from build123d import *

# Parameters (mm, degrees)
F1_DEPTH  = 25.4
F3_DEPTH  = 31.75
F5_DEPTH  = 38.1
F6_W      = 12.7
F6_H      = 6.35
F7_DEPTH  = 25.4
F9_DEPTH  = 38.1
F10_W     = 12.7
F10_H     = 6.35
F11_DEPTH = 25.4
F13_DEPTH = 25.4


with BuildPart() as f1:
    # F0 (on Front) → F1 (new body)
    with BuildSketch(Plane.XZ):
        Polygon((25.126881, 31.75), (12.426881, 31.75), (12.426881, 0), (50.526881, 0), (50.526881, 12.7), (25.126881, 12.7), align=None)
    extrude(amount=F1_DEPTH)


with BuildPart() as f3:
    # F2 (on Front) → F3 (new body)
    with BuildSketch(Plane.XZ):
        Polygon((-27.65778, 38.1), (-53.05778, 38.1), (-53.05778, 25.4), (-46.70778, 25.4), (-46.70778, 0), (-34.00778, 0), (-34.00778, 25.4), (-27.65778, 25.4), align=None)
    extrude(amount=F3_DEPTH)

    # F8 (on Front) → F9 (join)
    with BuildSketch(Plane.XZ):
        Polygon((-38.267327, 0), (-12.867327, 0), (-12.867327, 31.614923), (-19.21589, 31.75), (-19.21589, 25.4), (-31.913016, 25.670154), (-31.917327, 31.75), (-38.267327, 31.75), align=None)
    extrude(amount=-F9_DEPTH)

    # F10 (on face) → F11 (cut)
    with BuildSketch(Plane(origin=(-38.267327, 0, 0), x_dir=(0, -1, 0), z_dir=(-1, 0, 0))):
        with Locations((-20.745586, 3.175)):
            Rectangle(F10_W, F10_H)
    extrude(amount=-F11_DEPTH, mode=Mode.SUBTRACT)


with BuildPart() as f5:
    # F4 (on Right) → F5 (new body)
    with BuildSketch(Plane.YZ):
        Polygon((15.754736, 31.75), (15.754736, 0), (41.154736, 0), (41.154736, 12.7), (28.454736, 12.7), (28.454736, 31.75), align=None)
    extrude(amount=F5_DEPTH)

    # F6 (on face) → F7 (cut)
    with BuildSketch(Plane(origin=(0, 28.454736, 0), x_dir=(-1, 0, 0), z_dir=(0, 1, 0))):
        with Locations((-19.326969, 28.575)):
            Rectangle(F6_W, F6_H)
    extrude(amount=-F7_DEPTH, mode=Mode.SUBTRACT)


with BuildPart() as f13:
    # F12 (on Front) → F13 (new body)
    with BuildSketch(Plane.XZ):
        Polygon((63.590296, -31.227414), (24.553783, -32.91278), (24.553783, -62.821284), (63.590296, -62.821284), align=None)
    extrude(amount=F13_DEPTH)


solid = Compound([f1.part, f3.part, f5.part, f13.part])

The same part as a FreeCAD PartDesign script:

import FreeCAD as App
import Part
import Sketcher

V = App.Vector
Q = App.Units.Quantity


def add_polygon(sketch, points):
    """Adds a closed chain of lines whose ends are joined by coincident constraints."""
    first, n = sketch.GeometryCount, len(points)
    for a, b in zip(points, points[1:] + points[:1]):
        sketch.addGeometry(Part.LineSegment(App.Vector(*a, 0), App.Vector(*b, 0)), False)
    for i in range(n):
        sketch.addConstraint(Sketcher.Constraint("Coincident", first + i, 2, first + (i + 1) % n, 1))

doc = App.newDocument("Part")
body = doc.addObject("PartDesign::Body", "Body")

# Sketch on XZ plane
sketch1 = doc.addObject("Sketcher::SketchObject", "Sketch")
body.addObject(sketch1)
sketch1.AttachmentSupport = (doc.XZ_Plane, [""])
sketch1.MapMode = "FlatFace"
add_polygon(sketch1, [(25.126881, 31.75), (12.426881, 31.75), (12.426881, 0), (50.526881, 0), (50.526881, 12.7), (25.126881, 12.7)])  # lines 0-5
sketch1.addConstraint([
    Sketcher.Constraint("Horizontal", 0),
    Sketcher.Constraint("Vertical", 1),
    Sketcher.Constraint("Horizontal", 2),
    Sketcher.Constraint("Vertical", 3),
    Sketcher.Constraint("Horizontal", 4),
    Sketcher.Constraint("Vertical", 5),
    Sketcher.Constraint("PointOnObject", 1, 2, -1),
    Sketcher.Constraint("Equal", 0, 3),
    Sketcher.Constraint("DistanceX", 4, 2, 4, 1, Q("1 in")),
    Sketcher.Constraint("DistanceX", 0, 2, 0, 1, Q("0.5 in")),
    Sketcher.Constraint("DistanceY", 1, 2, 1, 1, Q("1.25 in")),
    Sketcher.Constraint("DistanceX", -1, 1, 0, 2, Q("12.426881 mm")),
])
pad1 = doc.addObject("PartDesign::Pad", "Pad")
body.addObject(pad1)
pad1.Profile = sketch1
pad1.Length = Q("1 in")
body2 = doc.addObject("PartDesign::Body", "Body001")

# Sketch on XZ plane
sketch2 = doc.addObject("Sketcher::SketchObject", "Sketch001")
body2.addObject(sketch2)
sketch2.AttachmentSupport = (doc.getObject("XZ_Plane001"), [""])
sketch2.MapMode = "FlatFace"
add_polygon(sketch2, [(-27.65778, 38.1), (-53.05778, 38.1), (-53.05778, 25.4), (-46.70778, 25.4), (-46.70778, 0), (-34.00778, 0), (-34.00778, 25.4), (-27.65778, 25.4)])  # lines 0-7
sketch2.addConstraint([
    Sketcher.Constraint("Horizontal", 0),
    Sketcher.Constraint("Vertical", 1),
    Sketcher.Constraint("Horizontal", 2),
    Sketcher.Constraint("Vertical", 3),
    Sketcher.Constraint("Horizontal", 4),
    Sketcher.Constraint("Vertical", 5),
    Sketcher.Constraint("Horizontal", 6),
    Sketcher.Constraint("Vertical", 7),
    Sketcher.Constraint("PointOnObject", 3, 2, -1),
    Sketcher.Constraint("Horizontal", 2, 2, 5, 2),
    Sketcher.Constraint("Equal", 2, 6),
    Sketcher.Constraint("Equal", 4, 1),
    Sketcher.Constraint("Equal", 0, 3),
    Sketcher.Constraint("DistanceX", 0, 2, 0, 1, Q("1 in")),
    Sketcher.Constraint("DistanceX", 4, 1, 4, 2, Q("0.5 in")),
    Sketcher.Constraint("DistanceX", 0, 2, -1, 1, Q("53.05778 mm")),
])
pad2 = doc.addObject("PartDesign::Pad", "Pad001")
body2.addObject(pad2)
pad2.Profile = sketch2
pad2.Length = Q("1.25 in")

# Sketch on XZ plane
sketch3 = doc.addObject("Sketcher::SketchObject", "Sketch002")
body2.addObject(sketch3)
sketch3.AttachmentSupport = (doc.getObject("XZ_Plane001"), [""])
sketch3.MapMode = "FlatFace"
add_polygon(sketch3, [(-38.267327, 0), (-12.867327, 0), (-12.867327, 31.614923), (-19.21589, 31.75), (-19.21589, 25.4), (-31.913016, 25.670154), (-31.917327, 31.75), (-38.267327, 31.75)])  # lines 0-7
sketch3.addConstraint([
    Sketcher.Constraint("Horizontal", 0),
    Sketcher.Constraint("Vertical", 1),
    Sketcher.Constraint("Vertical", 3),
    Sketcher.Constraint("Horizontal", 6),
    Sketcher.Constraint("Vertical", 7),
    Sketcher.Constraint("PointOnObject", 0, 2, -1),
    Sketcher.Constraint("Parallel", 2, 4),
    Sketcher.Constraint("Horizontal", 2, 2, 5, 2),
    Sketcher.Constraint("Equal", 6, 3),
    Sketcher.Constraint("DistanceX", 0, 1, 0, 2, Q("1 in")),
    Sketcher.Constraint("DistanceY", -1, 1, 3, 2, Q("1 in")),
    Sketcher.Constraint("Distance", 4, Q("0.5 in")),
    Sketcher.Constraint("DistanceX", 6, 2, 6, 1, Q("0.25 in")),
    Sketcher.Constraint("Distance", 2, Q("0.25 in")),
    Sketcher.Constraint("DistanceY", 1, 1, 1, 2, Q("31.614923 mm")),
    Sketcher.Constraint("DistanceX", 2, 2, -1, 1, Q("19.21589 mm")),
])
pad3 = doc.addObject("PartDesign::Pad", "Pad002")
body2.addObject(pad3)
pad3.Profile = sketch3
pad3.Length = Q("1.5 in")
pad3.Reversed = True

# Sketch on YZ plane
sketch4 = doc.addObject("Sketcher::SketchObject", "Sketch003")
body2.addObject(sketch4)
sketch4.AttachmentSupport = (doc.getObject("YZ_Plane001"), [""])
sketch4.MapMode = "FlatFace"
sketch4.AttachmentOffset = App.Placement(V(0, 0, -38.267327), App.Rotation())
add_polygon(sketch4, [(27.095586, 6.35), (27.095586, 0), (14.395586, 0), (14.395586, 6.35)])  # lines 0-3
sketch4.addConstraint([
    Sketcher.Constraint("Vertical", 0),
    Sketcher.Constraint("Horizontal", 1),
    Sketcher.Constraint("Vertical", 2),
    Sketcher.Constraint("Horizontal", 3),
    Sketcher.Constraint("PointOnObject", 0, 2, -1),
    Sketcher.Constraint("DistanceX", 1, 2, 1, 1, Q("0.5 in")),
    Sketcher.Constraint("DistanceY", 0, 2, 0, 1, Q("0.25 in")),
    Sketcher.Constraint("DistanceX", -1, 1, 0, 2, Q("27.095586 mm")),
])
pocket1 = doc.addObject("PartDesign::Pocket", "Pocket")
body2.addObject(pocket1)
pocket1.Profile = sketch4
pocket1.Length = Q("1 in")
pocket1.Reversed = True
body3 = doc.addObject("PartDesign::Body", "Body002")

# Sketch on YZ plane
sketch5 = doc.addObject("Sketcher::SketchObject", "Sketch004")
body3.addObject(sketch5)
sketch5.AttachmentSupport = (doc.getObject("YZ_Plane002"), [""])
sketch5.MapMode = "FlatFace"
add_polygon(sketch5, [(15.754736, 31.75), (15.754736, 0), (41.154736, 0), (41.154736, 12.7), (28.454736, 12.7), (28.454736, 31.75)])  # lines 0-5
sketch5.addConstraint([
    Sketcher.Constraint("Vertical", 0),
    Sketcher.Constraint("Horizontal", 1),
    Sketcher.Constraint("Vertical", 2),
    Sketcher.Constraint("Horizontal", 3),
    Sketcher.Constraint("Vertical", 4),
    Sketcher.Constraint("Horizontal", 5),
    Sketcher.Constraint("PointOnObject", 0, 2, -1),
    Sketcher.Constraint("Equal", 3, 5),
    Sketcher.Constraint("Equal", 5, 2),
    Sketcher.Constraint("DistanceX", 1, 1, 1, 2, Q("1 in")),
    Sketcher.Constraint("DistanceY", 0, 2, 0, 1, Q("1.25 in")),
    Sketcher.Constraint("DistanceX", -1, 1, 0, 2, Q("15.754736 mm")),
])
pad4 = doc.addObject("PartDesign::Pad", "Pad003")
body3.addObject(pad4)
pad4.Profile = sketch5
pad4.Length = Q("1.5 in")

# Sketch on XZ plane
sketch6 = doc.addObject("Sketcher::SketchObject", "Sketch005")
body3.addObject(sketch6)
sketch6.AttachmentSupport = (doc.getObject("XZ_Plane002"), [""])
sketch6.MapMode = "FlatFace"
sketch6.AttachmentOffset = App.Placement(V(0, 0, -28.454736), App.Rotation())
add_polygon(sketch6, [(25.676969, 31.75), (25.676969, 25.4), (12.976969, 25.4), (12.976969, 31.75)])  # lines 0-3
sketch6.addConstraint([
    Sketcher.Constraint("Vertical", 0),
    Sketcher.Constraint("Horizontal", 1),
    Sketcher.Constraint("Vertical", 2),
    Sketcher.Constraint("Horizontal", 3),
    Sketcher.Constraint("DistanceX", 1, 2, 1, 1, Q("0.5 in")),
    Sketcher.Constraint("DistanceY", -1, 1, 0, 2, Q("1 in")),
    Sketcher.Constraint("DistanceY", 0, 2, 0, 1, Q("0.25 in")),
    Sketcher.Constraint("DistanceX", -1, 1, 0, 2, Q("25.676969 mm")),
])
pocket2 = doc.addObject("PartDesign::Pocket", "Pocket001")
body3.addObject(pocket2)
pocket2.Profile = sketch6
pocket2.Length = Q("1 in")
pocket2.Reversed = True
body4 = doc.addObject("PartDesign::Body", "Body003")

# Sketch on XZ plane
sketch7 = doc.addObject("Sketcher::SketchObject", "Sketch006")
body4.addObject(sketch7)
sketch7.AttachmentSupport = (doc.getObject("XZ_Plane003"), [""])
sketch7.MapMode = "FlatFace"
add_polygon(sketch7, [(63.590296, -31.227414), (24.553783, -32.91278), (24.553783, -62.821284), (63.590296, -62.821284)])  # lines 0-3
sketch7.addConstraint([
    Sketcher.Constraint("Vertical", 1),
    Sketcher.Constraint("Horizontal", 2),
    Sketcher.Constraint("Vertical", 3),
    Sketcher.Constraint("DistanceY", 1, 2, 1, 1, Q("1.1775002 in")),
    Sketcher.Constraint("DistanceY", 3, 1, 3, 2, Q("31.59387 mm")),
    Sketcher.Constraint("Distance", 0, Q("39.072878 mm")),
    Sketcher.Constraint("DistanceY", 0, 2, -1, 1, Q("32.91278 mm")),
    Sketcher.Constraint("DistanceX", -1, 1, 0, 2, Q("24.553783 mm")),
])
pad5 = doc.addObject("PartDesign::Pad", "Pad004")
body4.addObject(pad5)
pad5.Profile = sketch7
pad5.Length = Q("1 in")

doc.recompute()
